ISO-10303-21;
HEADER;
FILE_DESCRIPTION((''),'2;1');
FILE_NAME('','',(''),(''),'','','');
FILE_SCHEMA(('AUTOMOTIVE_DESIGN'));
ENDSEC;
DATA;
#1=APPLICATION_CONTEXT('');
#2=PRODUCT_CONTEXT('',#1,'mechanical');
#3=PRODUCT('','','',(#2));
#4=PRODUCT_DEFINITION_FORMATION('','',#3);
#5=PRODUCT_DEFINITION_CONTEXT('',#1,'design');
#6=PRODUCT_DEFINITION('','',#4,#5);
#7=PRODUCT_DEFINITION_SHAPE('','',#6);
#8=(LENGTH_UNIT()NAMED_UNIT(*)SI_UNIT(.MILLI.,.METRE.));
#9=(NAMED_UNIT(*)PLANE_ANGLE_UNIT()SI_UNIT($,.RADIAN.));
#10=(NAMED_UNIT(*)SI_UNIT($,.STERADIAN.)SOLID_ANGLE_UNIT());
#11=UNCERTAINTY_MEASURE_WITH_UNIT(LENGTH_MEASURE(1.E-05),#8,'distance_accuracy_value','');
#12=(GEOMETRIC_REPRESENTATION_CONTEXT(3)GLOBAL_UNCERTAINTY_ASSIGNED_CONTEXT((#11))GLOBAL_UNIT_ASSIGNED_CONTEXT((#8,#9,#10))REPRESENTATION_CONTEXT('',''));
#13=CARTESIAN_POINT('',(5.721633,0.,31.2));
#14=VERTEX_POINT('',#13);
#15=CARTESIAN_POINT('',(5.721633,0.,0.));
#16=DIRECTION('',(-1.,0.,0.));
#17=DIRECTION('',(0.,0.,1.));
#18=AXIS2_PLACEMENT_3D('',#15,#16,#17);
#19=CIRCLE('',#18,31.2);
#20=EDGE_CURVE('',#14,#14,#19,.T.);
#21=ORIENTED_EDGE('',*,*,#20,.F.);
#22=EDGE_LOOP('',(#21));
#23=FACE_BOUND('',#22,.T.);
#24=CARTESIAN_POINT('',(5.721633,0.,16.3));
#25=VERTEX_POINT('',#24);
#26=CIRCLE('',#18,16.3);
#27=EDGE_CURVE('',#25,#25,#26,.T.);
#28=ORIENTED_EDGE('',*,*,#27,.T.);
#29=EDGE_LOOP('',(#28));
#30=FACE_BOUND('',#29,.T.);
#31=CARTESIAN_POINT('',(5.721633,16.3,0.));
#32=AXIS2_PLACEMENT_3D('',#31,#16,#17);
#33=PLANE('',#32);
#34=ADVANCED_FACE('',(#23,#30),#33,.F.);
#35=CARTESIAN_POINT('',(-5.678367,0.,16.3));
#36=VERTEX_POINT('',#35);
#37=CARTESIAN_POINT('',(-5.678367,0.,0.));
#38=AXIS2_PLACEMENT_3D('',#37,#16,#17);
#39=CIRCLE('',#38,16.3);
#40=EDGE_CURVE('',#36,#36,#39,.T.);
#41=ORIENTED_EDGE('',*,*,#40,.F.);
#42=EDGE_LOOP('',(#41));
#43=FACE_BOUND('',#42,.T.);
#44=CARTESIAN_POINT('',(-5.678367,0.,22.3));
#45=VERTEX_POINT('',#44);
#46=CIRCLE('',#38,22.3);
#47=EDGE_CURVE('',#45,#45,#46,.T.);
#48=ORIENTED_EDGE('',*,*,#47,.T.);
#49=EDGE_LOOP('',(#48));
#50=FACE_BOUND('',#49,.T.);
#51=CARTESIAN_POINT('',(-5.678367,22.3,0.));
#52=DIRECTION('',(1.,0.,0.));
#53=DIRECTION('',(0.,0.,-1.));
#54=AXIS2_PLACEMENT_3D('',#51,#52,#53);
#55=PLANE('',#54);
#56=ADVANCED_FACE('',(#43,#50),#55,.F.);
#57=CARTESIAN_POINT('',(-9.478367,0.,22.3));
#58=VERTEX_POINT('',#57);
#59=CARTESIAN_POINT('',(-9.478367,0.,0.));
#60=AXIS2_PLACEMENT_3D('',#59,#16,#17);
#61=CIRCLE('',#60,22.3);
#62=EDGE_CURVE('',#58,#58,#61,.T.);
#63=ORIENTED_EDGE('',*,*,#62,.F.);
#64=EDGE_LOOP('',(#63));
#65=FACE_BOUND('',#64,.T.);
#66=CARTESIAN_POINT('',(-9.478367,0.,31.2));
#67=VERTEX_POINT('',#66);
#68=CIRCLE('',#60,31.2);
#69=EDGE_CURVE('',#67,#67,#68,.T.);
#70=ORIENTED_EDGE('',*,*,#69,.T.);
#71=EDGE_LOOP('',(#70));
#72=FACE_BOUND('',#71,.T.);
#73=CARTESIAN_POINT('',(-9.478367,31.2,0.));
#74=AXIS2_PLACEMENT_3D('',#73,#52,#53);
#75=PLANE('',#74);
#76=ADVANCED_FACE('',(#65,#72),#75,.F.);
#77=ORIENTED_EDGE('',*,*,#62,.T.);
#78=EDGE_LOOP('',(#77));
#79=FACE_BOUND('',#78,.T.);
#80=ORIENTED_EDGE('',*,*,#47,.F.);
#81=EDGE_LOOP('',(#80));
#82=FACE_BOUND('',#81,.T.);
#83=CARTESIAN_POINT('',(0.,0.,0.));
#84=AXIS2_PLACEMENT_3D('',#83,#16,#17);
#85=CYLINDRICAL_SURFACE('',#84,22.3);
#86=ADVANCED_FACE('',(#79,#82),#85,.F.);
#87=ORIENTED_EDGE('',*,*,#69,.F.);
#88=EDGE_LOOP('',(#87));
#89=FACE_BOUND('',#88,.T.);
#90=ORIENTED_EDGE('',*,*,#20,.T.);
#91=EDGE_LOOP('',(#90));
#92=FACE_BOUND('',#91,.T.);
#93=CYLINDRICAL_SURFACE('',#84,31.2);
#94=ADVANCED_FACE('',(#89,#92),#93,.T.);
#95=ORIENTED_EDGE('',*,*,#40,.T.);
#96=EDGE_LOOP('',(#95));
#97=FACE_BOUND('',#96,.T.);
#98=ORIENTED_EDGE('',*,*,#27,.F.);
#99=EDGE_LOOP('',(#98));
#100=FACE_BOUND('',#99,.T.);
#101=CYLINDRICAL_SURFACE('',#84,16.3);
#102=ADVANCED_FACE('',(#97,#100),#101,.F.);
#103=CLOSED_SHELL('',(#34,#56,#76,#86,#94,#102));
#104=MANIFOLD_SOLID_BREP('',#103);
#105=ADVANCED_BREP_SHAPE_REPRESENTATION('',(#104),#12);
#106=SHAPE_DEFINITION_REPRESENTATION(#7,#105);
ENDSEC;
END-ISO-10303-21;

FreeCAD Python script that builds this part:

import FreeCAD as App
import Part
import Sketcher

doc = App.newDocument("Part")
body = doc.addObject("PartDesign::Body", "Body")

# Sketch on XY plane
sketch1 = doc.addObject("Sketcher::SketchObject", "Sketch")
body.addObject(sketch1)
sketch1.AttachmentSupport = (doc.XY_Plane, [""])
sketch1.MapMode = "FlatFace"
sketch1.addGeometry([
    Part.LineSegment(App.Vector(-5.678367, 16.3, 0), App.Vector(5.721633, 16.3, 0)),  # 0
    Part.LineSegment(App.Vector(5.721633, 16.3, 0), App.Vector(5.721633, 31.2, 0)),  # 1
    Part.LineSegment(App.Vector(5.721633, 31.2, 0), App.Vector(-9.478367, 31.2, 0)),  # 2
    Part.LineSegment(App.Vector(-9.478367, 31.2, 0), App.Vector(-9.478367, 22.3, 0)),  # 3
    Part.LineSegment(App.Vector(-9.478367, 22.3, 0), App.Vector(-5.678367, 22.3, 0)),  # 4
    Part.LineSegment(App.Vector(-5.678367, 22.3, 0), App.Vector(-5.678367, 16.3, 0)),  # 5
], False)
sketch1.addConstraint([
    Sketcher.Constraint("Coincident", 0, 2, 1, 1),
    Sketcher.Constraint("Coincident", 1, 2, 2, 1),
    Sketcher.Constraint("Coincident", 2, 2, 3, 1),
    Sketcher.Constraint("Coincident", 3, 2, 4, 1),
    Sketcher.Constraint("Coincident", 4, 2, 5, 1),
    Sketcher.Constraint("Coincident", 5, 2, 0, 1),
    Sketcher.Constraint("Horizontal", 0),
    Sketcher.Constraint("Vertical", 1),
    Sketcher.Constraint("Horizontal", 2),
    Sketcher.Constraint("Vertical", 3),
    Sketcher.Constraint("Horizontal", 4),
    Sketcher.Constraint("Vertical", 5),
    Sketcher.Constraint("DistanceY", 5, 2, 5, 1, 6.0),
    Sketcher.Constraint("DistanceX", 0, 1, 0, 2, 11.4),
    Sketcher.Constraint("DistanceX", 2, 2, 2, 1, 15.2),
    Sketcher.Constraint("DistanceY", 1, 1, 1, 2, 14.9),
    Sketcher.Constraint("DistanceY", -1, 1, 0, 2, 16.3),
    Sketcher.Constraint("DistanceX", -1, 1, 0, 2, 5.721633),
])
revolution = doc.addObject("PartDesign::Revolution", "Revolution")
body.addObject(revolution)
revolution.Profile = sketch1
revolution.ReferenceAxis = (sketch1, ["H_Axis"])
revolution.Angle = 360

doc.recompute()
